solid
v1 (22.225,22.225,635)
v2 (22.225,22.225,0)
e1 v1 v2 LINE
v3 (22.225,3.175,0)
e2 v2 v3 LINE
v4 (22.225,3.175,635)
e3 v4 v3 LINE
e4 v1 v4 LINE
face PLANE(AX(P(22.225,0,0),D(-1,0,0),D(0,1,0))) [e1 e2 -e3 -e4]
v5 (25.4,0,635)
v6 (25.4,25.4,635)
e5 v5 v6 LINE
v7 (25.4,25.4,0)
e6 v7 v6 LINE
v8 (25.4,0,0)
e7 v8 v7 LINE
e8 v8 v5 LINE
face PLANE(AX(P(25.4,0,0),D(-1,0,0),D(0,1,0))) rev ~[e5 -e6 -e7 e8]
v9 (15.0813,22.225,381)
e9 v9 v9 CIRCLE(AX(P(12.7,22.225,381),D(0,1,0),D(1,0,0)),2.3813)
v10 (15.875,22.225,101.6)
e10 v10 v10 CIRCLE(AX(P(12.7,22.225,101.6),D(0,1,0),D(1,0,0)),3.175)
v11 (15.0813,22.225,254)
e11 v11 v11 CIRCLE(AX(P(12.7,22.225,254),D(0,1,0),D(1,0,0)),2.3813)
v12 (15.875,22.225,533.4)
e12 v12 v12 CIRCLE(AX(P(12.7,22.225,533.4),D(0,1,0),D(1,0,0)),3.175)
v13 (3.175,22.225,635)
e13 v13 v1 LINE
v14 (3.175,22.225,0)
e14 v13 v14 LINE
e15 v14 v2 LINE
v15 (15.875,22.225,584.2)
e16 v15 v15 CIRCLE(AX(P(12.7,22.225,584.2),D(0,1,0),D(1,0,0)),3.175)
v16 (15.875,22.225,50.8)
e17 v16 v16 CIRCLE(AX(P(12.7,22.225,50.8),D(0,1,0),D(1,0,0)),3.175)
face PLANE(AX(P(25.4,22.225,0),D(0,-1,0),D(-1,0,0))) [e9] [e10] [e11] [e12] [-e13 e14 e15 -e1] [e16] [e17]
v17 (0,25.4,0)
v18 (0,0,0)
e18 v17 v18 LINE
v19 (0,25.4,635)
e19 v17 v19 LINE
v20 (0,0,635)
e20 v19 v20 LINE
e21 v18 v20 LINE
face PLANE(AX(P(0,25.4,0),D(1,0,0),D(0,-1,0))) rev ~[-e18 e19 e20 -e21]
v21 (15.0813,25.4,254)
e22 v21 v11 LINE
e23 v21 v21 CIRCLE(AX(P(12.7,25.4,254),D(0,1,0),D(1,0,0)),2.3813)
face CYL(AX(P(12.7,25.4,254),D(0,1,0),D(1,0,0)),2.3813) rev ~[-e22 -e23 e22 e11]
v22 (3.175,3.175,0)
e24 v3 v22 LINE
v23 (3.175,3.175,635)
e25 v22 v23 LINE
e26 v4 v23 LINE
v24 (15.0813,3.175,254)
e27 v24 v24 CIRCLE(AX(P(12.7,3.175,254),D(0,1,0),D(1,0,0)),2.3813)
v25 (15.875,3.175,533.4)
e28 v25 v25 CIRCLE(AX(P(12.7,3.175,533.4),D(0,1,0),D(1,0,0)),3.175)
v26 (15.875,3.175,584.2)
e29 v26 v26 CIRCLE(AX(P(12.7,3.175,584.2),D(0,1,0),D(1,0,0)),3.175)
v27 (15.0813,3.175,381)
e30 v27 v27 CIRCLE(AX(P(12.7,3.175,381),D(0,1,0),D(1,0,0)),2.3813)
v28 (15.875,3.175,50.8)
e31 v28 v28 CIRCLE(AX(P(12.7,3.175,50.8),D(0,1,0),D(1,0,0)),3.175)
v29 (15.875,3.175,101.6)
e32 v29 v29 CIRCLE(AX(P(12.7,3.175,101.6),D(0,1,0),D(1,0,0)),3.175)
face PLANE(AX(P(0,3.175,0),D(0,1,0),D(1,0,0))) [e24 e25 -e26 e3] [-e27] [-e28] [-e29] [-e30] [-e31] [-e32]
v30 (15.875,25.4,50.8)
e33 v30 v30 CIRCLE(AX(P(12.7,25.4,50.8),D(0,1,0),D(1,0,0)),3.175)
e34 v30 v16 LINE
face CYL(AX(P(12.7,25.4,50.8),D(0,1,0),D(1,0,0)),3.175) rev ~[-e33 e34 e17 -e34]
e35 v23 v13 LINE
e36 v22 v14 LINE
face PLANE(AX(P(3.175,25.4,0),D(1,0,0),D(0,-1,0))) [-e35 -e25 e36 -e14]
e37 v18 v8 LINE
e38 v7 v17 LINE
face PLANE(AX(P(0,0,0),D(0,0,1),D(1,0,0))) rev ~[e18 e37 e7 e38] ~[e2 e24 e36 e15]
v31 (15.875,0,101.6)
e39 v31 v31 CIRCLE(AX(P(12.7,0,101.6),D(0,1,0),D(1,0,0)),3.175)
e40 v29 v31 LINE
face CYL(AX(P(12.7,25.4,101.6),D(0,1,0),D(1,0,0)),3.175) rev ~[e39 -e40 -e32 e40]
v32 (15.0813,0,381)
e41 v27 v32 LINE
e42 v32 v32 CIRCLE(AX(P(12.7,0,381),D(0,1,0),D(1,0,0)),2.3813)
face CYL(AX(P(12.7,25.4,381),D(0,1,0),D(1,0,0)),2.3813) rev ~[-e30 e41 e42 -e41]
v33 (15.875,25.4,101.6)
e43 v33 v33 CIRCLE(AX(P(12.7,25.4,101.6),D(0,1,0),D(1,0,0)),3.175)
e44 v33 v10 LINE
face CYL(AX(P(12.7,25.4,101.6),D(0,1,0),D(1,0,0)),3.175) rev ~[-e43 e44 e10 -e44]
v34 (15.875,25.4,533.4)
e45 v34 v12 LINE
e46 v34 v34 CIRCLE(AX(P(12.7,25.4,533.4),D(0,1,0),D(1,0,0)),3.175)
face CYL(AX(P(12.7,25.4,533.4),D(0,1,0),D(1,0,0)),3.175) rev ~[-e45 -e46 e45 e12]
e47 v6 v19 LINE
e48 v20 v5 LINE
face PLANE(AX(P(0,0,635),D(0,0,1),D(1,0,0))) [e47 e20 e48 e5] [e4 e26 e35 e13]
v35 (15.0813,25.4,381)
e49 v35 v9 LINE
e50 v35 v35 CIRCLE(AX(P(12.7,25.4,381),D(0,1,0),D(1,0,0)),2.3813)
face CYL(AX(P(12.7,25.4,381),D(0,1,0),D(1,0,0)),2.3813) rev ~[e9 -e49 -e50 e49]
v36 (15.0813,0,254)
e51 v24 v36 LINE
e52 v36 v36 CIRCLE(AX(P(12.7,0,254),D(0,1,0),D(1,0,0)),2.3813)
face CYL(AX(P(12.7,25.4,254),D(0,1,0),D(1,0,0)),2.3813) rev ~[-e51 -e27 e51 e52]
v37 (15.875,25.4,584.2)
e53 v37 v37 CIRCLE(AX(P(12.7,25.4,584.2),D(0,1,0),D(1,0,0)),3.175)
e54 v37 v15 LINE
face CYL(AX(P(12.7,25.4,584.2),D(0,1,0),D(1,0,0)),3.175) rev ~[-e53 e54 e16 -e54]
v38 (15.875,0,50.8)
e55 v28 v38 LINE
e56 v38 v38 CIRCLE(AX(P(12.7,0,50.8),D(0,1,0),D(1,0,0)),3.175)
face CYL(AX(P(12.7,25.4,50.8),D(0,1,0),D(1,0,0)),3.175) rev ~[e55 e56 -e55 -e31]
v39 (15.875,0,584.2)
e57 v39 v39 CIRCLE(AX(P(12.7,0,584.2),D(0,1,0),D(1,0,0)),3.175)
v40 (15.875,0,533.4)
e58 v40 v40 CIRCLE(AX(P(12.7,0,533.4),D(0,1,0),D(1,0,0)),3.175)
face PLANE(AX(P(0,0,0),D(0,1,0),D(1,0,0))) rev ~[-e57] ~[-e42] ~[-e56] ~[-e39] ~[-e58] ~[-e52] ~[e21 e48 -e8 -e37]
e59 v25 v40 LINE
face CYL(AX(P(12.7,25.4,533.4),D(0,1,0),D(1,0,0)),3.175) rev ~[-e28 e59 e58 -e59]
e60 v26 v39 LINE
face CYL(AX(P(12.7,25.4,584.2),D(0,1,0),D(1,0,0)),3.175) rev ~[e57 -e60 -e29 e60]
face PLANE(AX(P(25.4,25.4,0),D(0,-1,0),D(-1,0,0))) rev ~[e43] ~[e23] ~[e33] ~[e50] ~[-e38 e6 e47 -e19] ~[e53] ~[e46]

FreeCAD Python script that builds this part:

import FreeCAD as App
import Part
import Sketcher
Q = App.Units.Quantity


def faces_at(feature, points):
    """Names of the faces that lie closest to the given points."""
    faces = feature.Shape.Faces
    near = lambda p: min(range(len(faces)), key=lambda i: faces[i].distToShape(Part.Vertex(*p))[0])
    return sorted({f"Face{near(p) + 1}" for p in points})

doc = App.newDocument("Part")
params = doc.addObject("Spreadsheet::Sheet", "Params")
for row, (alias, value) in enumerate([
    ("sketch1_width", "1 in"),
    ("pad1_length", "25 in"),
    ("thickness_wall", "0.125 in"),
    ("sketch2_diameter", "0.25 in"),
    ("sketch3_diameter", "0.1875 in"),
], start=1):
    params.set(f"A{row}", alias)
    params.set(f"B{row}", "=" + value)
    params.setAlias(f"B{row}", alias)

body = doc.addObject("PartDesign::Body", "Body")

# Sketch on XY plane
sketch1 = doc.addObject("Sketcher::SketchObject", "Sketch")
body.addObject(sketch1)
sketch1.AttachmentSupport = (doc.XY_Plane, [""])
sketch1.MapMode = "FlatFace"
sketch1.addGeometry(Part.LineSegment(App.Vector(0, 25.4, 0), App.Vector(0, 0, 0)), False)
sketch1.addGeometry(Part.LineSegment(App.Vector(0, 0, 0), App.Vector(25.4, 0, 0)), False)
sketch1.addGeometry(Part.LineSegment(App.Vector(25.4, 0, 0), App.Vector(25.4, 25.4, 0)), False)
sketch1.addGeometry(Part.LineSegment(App.Vector(25.4, 25.4, 0), App.Vector(0, 25.4, 0)), False)
sketch1.addConstraint(Sketcher.Constraint("Coincident", 0, 2, 1, 1))
sketch1.addConstraint(Sketcher.Constraint("Coincident", 1, 2, 2, 1))
sketch1.addConstraint(Sketcher.Constraint("Coincident", 2, 2, 3, 1))
sketch1.addConstraint(Sketcher.Constraint("Coincident", 3, 2, 0, 1))
sketch1.addConstraint(Sketcher.Constraint("Vertical", 0))
sketch1.addConstraint(Sketcher.Constraint("Horizontal", 1))
sketch1.addConstraint(Sketcher.Constraint("Vertical", 2))
sketch1.addConstraint(Sketcher.Constraint("Horizontal", 3))
sketch1.addConstraint(Sketcher.Constraint("Coincident", 0, 2, -1, 1))
sketch1.addConstraint(Sketcher.Constraint("Equal", 3, 0))
sketch1.addConstraint(Sketcher.Constraint("DistanceX", 1, 1, 1, 2, Q("1 in")))
sketch1.setExpression("Constraints[10]", "Params.sketch1_width")
pad1 = doc.addObject("PartDesign::Pad", "Pad")
body.addObject(pad1)
pad1.Profile = sketch1
pad1.setExpression("Length", "Params.pad1_length")
doc.recompute()

thickness = doc.addObject("PartDesign::Thickness", "Thickness")
body.addObject(thickness)
thickness.Base = (pad1, faces_at(pad1, [(8.467, 16.933, 0), (16.933, 8.467, 635)]))
thickness.setExpression("Value", "Params.thickness_wall")
thickness.Reversed = True
thickness.Join = "Intersection"

# Sketch on XZ plane
sketch2 = doc.addObject("Sketcher::SketchObject", "Sketch001")
body.addObject(sketch2)
sketch2.AttachmentSupport = (doc.XZ_Plane, [""])
sketch2.MapMode = "FlatFace"
sketch2.AttachmentOffset = App.Placement(App.Vector(0, 0, -1 * 25.4), App.Rotation())
sketch2.addGeometry(Part.Circle(App.Vector(12.7, 50.8, 0), App.Vector(0, 0, 1), 3.175), False)
sketch2.addGeometry(Part.Circle(App.Vector(12.7, 101.6, 0), App.Vector(0, 0, 1), 3.175), False)
sketch2.addGeometry(Part.Circle(App.Vector(12.7, 533.4, 0), App.Vector(0, 0, 1), 3.175), False)
sketch2.addGeometry(Part.Circle(App.Vector(12.7, 584.2, 0), App.Vector(0, 0, 1), 3.175), False)
sketch2.addConstraint(Sketcher.Constraint("Equal", 0, 1))
sketch2.addConstraint(Sketcher.Constraint("Equal", 1, 2))
sketch2.addConstraint(Sketcher.Constraint("Equal", 2, 3))
sketch2.addConstraint(Sketcher.Constraint("Vertical", 0, 3, 1, 3))
sketch2.addConstraint(Sketcher.Constraint("Vertical", 1, 3, 2, 3))
sketch2.addConstraint(Sketcher.Constraint("Vertical", 2, 3, 3, 3))
sketch2.addConstraint(Sketcher.Constraint("Diameter", 0, Q("0.25 in")))
sketch2.addConstraint(Sketcher.Constraint("DistanceY", -1, 1, 0, 3, Q("2 in")))
sketch2.addConstraint(Sketcher.Constraint("DistanceY", 0, 3, 1, 3, Q("2 in")))
sketch2.addConstraint(Sketcher.Constraint("DistanceY", 2, 3, 3, 3, Q("2 in")))
sketch2.addConstraint(Sketcher.Constraint("DistanceX", -1, 1, 0, 3, Q("0.5 in")))
sketch2.addConstraint(Sketcher.Constraint("DistanceY", -1, 1, 2, 3, Q("21 in")))
sketch2.setExpression("Constraints[6]", "Params.sketch2_diameter")
pocket1 = doc.addObject("PartDesign::Pocket", "Pocket")
body.addObject(pocket1)
pocket1.Profile = sketch2
pocket1.Type = "ThroughAll"
pocket1.Reversed = True

# Sketch on XZ plane
sketch3 = doc.addObject("Sketcher::SketchObject", "Sketch002")
body.addObject(sketch3)
sketch3.AttachmentSupport = (doc.XZ_Plane, [""])
sketch3.MapMode = "FlatFace"
sketch3.AttachmentOffset = App.Placement(App.Vector(0, 0, -1 * 25.4), App.Rotation())
sketch3.addGeometry(Part.Circle(App.Vector(12.7, 254, 0), App.Vector(0, 0, 1), 2.3813), False)
sketch3.addGeometry(Part.Circle(App.Vector(12.7, 381, 0), App.Vector(0, 0, 1), 2.3813), False)
sketch3.addConstraint(Sketcher.Constraint("Equal", 0, 1))
sketch3.addConstraint(Sketcher.Constraint("Vertical", 0, 3, 1, 3))
sketch3.addConstraint(Sketcher.Constraint("Diameter", 0, Q("0.1875 in")))
sketch3.addConstraint(Sketcher.Constraint("DistanceY", -1, 1, 0, 3, Q("10 in")))
sketch3.addConstraint(Sketcher.Constraint("DistanceY", 0, 3, 1, 3, Q("5 in")))
sketch3.addConstraint(Sketcher.Constraint("DistanceX", -1, 1, 0, 3, Q("0.5 in")))
sketch3.setExpression("Constraints[2]", "Params.sketch3_diameter")
pocket2 = doc.addObject("PartDesign::Pocket", "Pocket001")
body.addObject(pocket2)
pocket2.Profile = sketch3
pocket2.Type = "ThroughAll"
pocket2.Reversed = True

doc.recompute()
